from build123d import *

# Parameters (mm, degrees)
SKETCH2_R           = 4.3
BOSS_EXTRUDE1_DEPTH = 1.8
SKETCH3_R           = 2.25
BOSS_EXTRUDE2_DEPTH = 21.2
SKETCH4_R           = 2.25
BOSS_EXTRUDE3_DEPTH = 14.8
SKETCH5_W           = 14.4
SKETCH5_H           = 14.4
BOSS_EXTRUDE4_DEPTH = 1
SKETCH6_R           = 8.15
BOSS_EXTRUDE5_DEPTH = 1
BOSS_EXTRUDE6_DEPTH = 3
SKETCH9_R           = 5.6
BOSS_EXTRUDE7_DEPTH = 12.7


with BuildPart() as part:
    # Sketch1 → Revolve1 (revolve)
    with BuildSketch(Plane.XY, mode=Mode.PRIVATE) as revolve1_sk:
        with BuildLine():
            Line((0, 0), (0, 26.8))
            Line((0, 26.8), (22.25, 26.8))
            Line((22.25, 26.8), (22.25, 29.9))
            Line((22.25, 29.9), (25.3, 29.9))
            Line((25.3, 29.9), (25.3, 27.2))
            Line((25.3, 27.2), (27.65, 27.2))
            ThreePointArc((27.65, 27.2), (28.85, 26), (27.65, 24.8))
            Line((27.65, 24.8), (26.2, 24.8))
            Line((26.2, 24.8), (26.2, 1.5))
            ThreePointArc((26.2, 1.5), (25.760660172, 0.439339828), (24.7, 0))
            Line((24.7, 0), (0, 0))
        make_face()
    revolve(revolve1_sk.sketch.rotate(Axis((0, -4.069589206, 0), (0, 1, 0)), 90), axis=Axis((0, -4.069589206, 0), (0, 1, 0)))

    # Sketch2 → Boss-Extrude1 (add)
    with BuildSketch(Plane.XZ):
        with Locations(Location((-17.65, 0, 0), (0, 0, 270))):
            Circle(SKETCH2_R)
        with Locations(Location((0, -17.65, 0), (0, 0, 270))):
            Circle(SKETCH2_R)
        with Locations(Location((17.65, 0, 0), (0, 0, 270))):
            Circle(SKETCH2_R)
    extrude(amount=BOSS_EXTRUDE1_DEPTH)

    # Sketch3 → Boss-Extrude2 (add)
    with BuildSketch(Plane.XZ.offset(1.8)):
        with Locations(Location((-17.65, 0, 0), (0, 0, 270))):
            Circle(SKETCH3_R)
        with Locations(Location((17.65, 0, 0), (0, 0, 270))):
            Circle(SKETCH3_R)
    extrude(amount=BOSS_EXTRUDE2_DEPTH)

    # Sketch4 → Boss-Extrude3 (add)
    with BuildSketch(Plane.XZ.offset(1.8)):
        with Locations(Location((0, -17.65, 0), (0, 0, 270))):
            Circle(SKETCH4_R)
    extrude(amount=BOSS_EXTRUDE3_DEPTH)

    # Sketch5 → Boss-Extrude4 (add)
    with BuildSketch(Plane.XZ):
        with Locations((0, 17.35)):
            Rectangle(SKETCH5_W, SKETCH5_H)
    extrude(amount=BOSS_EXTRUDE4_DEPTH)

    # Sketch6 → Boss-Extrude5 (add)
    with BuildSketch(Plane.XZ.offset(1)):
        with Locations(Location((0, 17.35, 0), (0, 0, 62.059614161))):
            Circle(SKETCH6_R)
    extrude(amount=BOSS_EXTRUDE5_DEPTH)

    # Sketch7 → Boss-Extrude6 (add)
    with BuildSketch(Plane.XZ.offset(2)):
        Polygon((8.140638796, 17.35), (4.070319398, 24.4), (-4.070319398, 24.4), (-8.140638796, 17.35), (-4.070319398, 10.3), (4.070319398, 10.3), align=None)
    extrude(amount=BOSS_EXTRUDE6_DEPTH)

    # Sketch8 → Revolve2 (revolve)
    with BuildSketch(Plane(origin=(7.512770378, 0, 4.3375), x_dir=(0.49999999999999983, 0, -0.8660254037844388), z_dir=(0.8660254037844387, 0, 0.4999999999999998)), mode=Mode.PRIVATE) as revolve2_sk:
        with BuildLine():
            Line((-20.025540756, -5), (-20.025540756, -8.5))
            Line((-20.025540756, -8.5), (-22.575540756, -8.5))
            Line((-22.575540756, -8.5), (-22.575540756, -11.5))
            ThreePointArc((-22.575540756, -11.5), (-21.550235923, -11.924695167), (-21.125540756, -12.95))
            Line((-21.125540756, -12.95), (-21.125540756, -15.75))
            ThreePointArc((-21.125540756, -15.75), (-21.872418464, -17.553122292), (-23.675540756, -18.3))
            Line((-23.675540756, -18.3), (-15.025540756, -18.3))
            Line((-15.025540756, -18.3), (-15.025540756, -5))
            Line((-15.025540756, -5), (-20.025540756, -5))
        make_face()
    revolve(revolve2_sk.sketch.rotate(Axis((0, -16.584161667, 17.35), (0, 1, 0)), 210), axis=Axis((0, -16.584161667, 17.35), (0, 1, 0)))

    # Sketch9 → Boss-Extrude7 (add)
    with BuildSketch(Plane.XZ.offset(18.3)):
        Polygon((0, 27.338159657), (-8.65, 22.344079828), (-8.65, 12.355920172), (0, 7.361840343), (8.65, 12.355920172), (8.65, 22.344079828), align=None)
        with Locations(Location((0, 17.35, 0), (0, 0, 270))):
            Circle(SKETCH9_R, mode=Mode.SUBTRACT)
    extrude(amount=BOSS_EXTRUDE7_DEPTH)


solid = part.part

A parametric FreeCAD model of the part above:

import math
import FreeCAD as App
import Part
import Sketcher
Q = App.Units.Quantity

doc = App.newDocument("Part")
body = doc.addObject("PartDesign::Body", "Body")

sketch1 = body.newObject("Sketcher::SketchObject", "Sketch")
sketch1.AttachmentSupport = (doc.getObject("XY_Plane"), [""])
sketch1.MapMode = "FlatFace"
sketch1.addGeometry(Part.LineSegment(App.Vector(0, 26.8, 0), App.Vector(0, 0, 0)), False)
sketch1.addGeometry(Part.LineSegment(App.Vector(0, 0, 0), App.Vector(24.7, 0, 0)), False)
sketch1.addGeometry(Part.ArcOfCircle(Part.Circle(App.Vector(24.7, 1.5, 0), App.Vector(0, 0, 1), 1.5), math.radians(-90), math.radians(0)), False)
sketch1.addGeometry(Part.LineSegment(App.Vector(26.2, 1.5, 0), App.Vector(26.2, 24.8, 0)), False)
sketch1.addGeometry(Part.LineSegment(App.Vector(26.2, 24.8, 0), App.Vector(27.65, 24.8, 0)), False)
sketch1.addGeometry(Part.ArcOfCircle(Part.Circle(App.Vector(27.65, 26, 0), App.Vector(0, 0, 1), 1.2), math.radians(-90), math.radians(90)), False)
sketch1.addGeometry(Part.LineSegment(App.Vector(27.65, 27.2, 0), App.Vector(25.3, 27.2, 0)), False)
sketch1.addGeometry(Part.LineSegment(App.Vector(25.3, 27.2, 0), App.Vector(25.3, 29.9, 0)), False)
sketch1.addGeometry(Part.LineSegment(App.Vector(25.3, 29.9, 0), App.Vector(22.25, 29.9, 0)), False)
sketch1.addGeometry(Part.LineSegment(App.Vector(22.25, 29.9, 0), App.Vector(22.25, 26.8, 0)), False)
sketch1.addGeometry(Part.LineSegment(App.Vector(22.25, 26.8, 0), App.Vector(0, 26.8, 0)), False)
sketch1.addConstraint(Sketcher.Constraint("Coincident", 0, 2, 1, 1))
sketch1.addConstraint(Sketcher.Constraint("Tangent", 1, 2, 2, 1))
sketch1.addConstraint(Sketcher.Constraint("Tangent", 2, 2, 3, 1))
sketch1.addConstraint(Sketcher.Constraint("Coincident", 3, 2, 4, 1))
sketch1.addConstraint(Sketcher.Constraint("Tangent", 4, 2, 5, 1))
sketch1.addConstraint(Sketcher.Constraint("Tangent", 5, 2, 6, 1))
sketch1.addConstraint(Sketcher.Constraint("Coincident", 6, 2, 7, 1))
sketch1.addConstraint(Sketcher.Constraint("Coincident", 7, 2, 8, 1))
sketch1.addConstraint(Sketcher.Constraint("Coincident", 8, 2, 9, 1))
sketch1.addConstraint(Sketcher.Constraint("Coincident", 9, 2, 10, 1))
sketch1.addConstraint(Sketcher.Constraint("Coincident", 10, 2, 0, 1))
sketch1.addConstraint(Sketcher.Constraint("Vertical", 0))
sketch1.addConstraint(Sketcher.Constraint("Horizontal", 1))
sketch1.addConstraint(Sketcher.Constraint("Vertical", 3))
sketch1.addConstraint(Sketcher.Constraint("Horizontal", 4))
sketch1.addConstraint(Sketcher.Constraint("Horizontal", 6))
sketch1.addConstraint(Sketcher.Constraint("Vertical", 7))
sketch1.addConstraint(Sketcher.Constraint("Horizontal", 8))
sketch1.addConstraint(Sketcher.Constraint("Vertical", 9))
sketch1.addConstraint(Sketcher.Constraint("Horizontal", 10))
sketch1.addConstraint(Sketcher.Constraint("Coincident", 0, 2, -1, 1))
sketch1.addConstraint(Sketcher.Constraint("Radius", 2, 1.5))
sketch1.addConstraint(Sketcher.Constraint("Radius", 5, 1.2))
sketch1.addConstraint(Sketcher.Constraint("DistanceX", 1, 1, 1, 2, 24.7))
sketch1.addConstraint(Sketcher.Constraint("DistanceY", 0, 2, 0, 1, 26.8))
sketch1.addConstraint(Sketcher.Constraint("DistanceY", 3, 1, 3, 2, 23.3))
sketch1.addConstraint(Sketcher.Constraint("DistanceY", 7, 1, 7, 2, 2.7))
sketch1.addConstraint(Sketcher.Constraint("DistanceX", 4, 1, 4, 2, 1.45))
sketch1.addConstraint(Sketcher.Constraint("DistanceX", 6, 2, 6, 1, 2.35))
sketch1.addConstraint(Sketcher.Constraint("DistanceX", 8, 2, 8, 1, 3.05))
revolution = body.newObject("PartDesign::Revolution", "Revolution")
revolution.Profile = sketch1
revolution.ReferenceAxis = (sketch1, ["V_Axis"])
revolution.Angle = 360

sketch2 = body.newObject("Sketcher::SketchObject", "Sketch001")
sketch2.AttachmentSupport = (doc.getObject("XZ_Plane"), [""])
sketch2.MapMode = "FlatFace"
sketch2.addGeometry(Part.Circle(App.Vector(-17.65, 0, 0), App.Vector(0, 0, 1), 4.3), False)
sketch2.addGeometry(Part.Circle(App.Vector(0, -17.65, 0), App.Vector(0, 0, 1), 4.3), False)
sketch2.addGeometry(Part.Circle(App.Vector(17.65, 0, 0), App.Vector(0, 0, 1), 4.3), False)
sketch2.addConstraint(Sketcher.Constraint("Equal", 0, 1))
sketch2.addConstraint(Sketcher.Constraint("Equal", 1, 2))
sketch2.addConstraint(Sketcher.Constraint("Symmetric", 0, 3, 2, 3, -1, 1))
sketch2.addConstraint(Sketcher.Constraint("PointOnObject", 0, 3, -1))
sketch2.addConstraint(Sketcher.Constraint("PointOnObject", 1, 3, -2))
sketch2.addConstraint(Sketcher.Constraint("Diameter", 0, 8.6))
sketch2.addConstraint(Sketcher.Constraint("DistanceX", 0, 3, 2, 3, 35.3))
sketch2.addConstraint(Sketcher.Constraint("DistanceY", 1, 3, -1, 1, 17.65))
pad1 = body.newObject("PartDesign::Pad", "Pad")
pad1.Profile = sketch2
pad1.Length = 1.8

sketch3 = body.newObject("Sketcher::SketchObject", "Sketch002")
sketch3.AttachmentSupport = (doc.getObject("XZ_Plane"), [""])
sketch3.MapMode = "FlatFace"
sketch3.AttachmentOffset = App.Placement(App.Vector(0, 0, 1.8), App.Rotation())
sketch3.addGeometry(Part.Circle(App.Vector(-17.65, 0, 0), App.Vector(0, 0, 1), 2.25), False)
sketch3.addGeometry(Part.Circle(App.Vector(17.65, 0, 0), App.Vector(0, 0, 1), 2.25), False)
sketch3.addConstraint(Sketcher.Constraint("Equal", 0, 1))
sketch3.addConstraint(Sketcher.Constraint("Symmetric", 0, 3, 1, 3, -1, 1))
sketch3.addConstraint(Sketcher.Constraint("PointOnObject", 0, 3, -1))
sketch3.addConstraint(Sketcher.Constraint("Diameter", 0, 4.5))
sketch3.addConstraint(Sketcher.Constraint("DistanceX", 0, 3, 1, 3, 35.3))
pad2 = body.newObject("PartDesign::Pad", "Pad001")
pad2.Profile = sketch3
pad2.Length = 21.2

sketch4 = body.newObject("Sketcher::SketchObject", "Sketch003")
sketch4.AttachmentSupport = (doc.getObject("XZ_Plane"), [""])
sketch4.MapMode = "FlatFace"
sketch4.AttachmentOffset = App.Placement(App.Vector(0, 0, 1.8), App.Rotation())
sketch4.addGeometry(Part.Circle(App.Vector(0, -17.65, 0), App.Vector(0, 0, 1), 2.25), False)
sketch4.addConstraint(Sketcher.Constraint("PointOnObject", 0, 3, -2))
sketch4.addConstraint(Sketcher.Constraint("Diameter", 0, 4.5))
sketch4.addConstraint(Sketcher.Constraint("DistanceY", 0, 3, -1, 1, 17.65))
pad3 = body.newObject("PartDesign::Pad", "Pad002")
pad3.Profile = sketch4
pad3.Length = 14.8

sketch5 = body.newObject("Sketcher::SketchObject", "Sketch004")
sketch5.AttachmentSupport = (doc.getObject("XZ_Plane"), [""])
sketch5.MapMode = "FlatFace"
sketch5.addGeometry(Part.LineSegment(App.Vector(-7.2, 24.55, 0), App.Vector(-7.2, 10.15, 0)), False)
sketch5.addGeometry(Part.LineSegment(App.Vector(-7.2, 10.15, 0), App.Vector(7.2, 10.15, 0)), False)
sketch5.addGeometry(Part.LineSegment(App.Vector(7.2, 10.15, 0), App.Vector(7.2, 24.55, 0)), False)
sketch5.addGeometry(Part.LineSegment(App.Vector(7.2, 24.55, 0), App.Vector(-7.2, 24.55, 0)), False)
sketch5.addConstraint(Sketcher.Constraint("Coincident", 0, 2, 1, 1))
sketch5.addConstraint(Sketcher.Constraint("Coincident", 1, 2, 2, 1))
sketch5.addConstraint(Sketcher.Constraint("Coincident", 2, 2, 3, 1))
sketch5.addConstraint(Sketcher.Constraint("Coincident", 3, 2, 0, 1))
sketch5.addConstraint(Sketcher.Constraint("Vertical", 0))
sketch5.addConstraint(Sketcher.Constraint("Horizontal", 1))
sketch5.addConstraint(Sketcher.Constraint("Vertical", 2))
sketch5.addConstraint(Sketcher.Constraint("Horizontal", 3))
sketch5.addConstraint(Sketcher.Constraint("Equal", 3, 0))
sketch5.addConstraint(Sketcher.Constraint("DistanceX", 1, 1, 1, 2, 14.4))
sketch5.addConstraint(Sketcher.Constraint("DistanceX", 0, 2, -1, 1, 7.2))
sketch5.addConstraint(Sketcher.Constraint("DistanceY", -1, 1, 0, 2, 10.15))
pad4 = body.newObject("PartDesign::Pad", "Pad003")
pad4.Profile = sketch5
pad4.Length = 1

sketch6 = body.newObject("Sketcher::SketchObject", "Sketch005")
sketch6.AttachmentSupport = (doc.getObject("XZ_Plane"), [""])
sketch6.MapMode = "FlatFace"
sketch6.AttachmentOffset = App.Placement(App.Vector(0, 0, 1), App.Rotation())
sketch6.addGeometry(Part.Circle(App.Vector(0, 17.35, 0), App.Vector(0, 0, 1), 8.15), False)
sketch6.addConstraint(Sketcher.Constraint("PointOnObject", 0, 3, -2))
sketch6.addConstraint(Sketcher.Constraint("Diameter", 0, 16.3))
sketch6.addConstraint(Sketcher.Constraint("DistanceY", -1, 1, 0, 3, 17.35))
pad5 = body.newObject("PartDesign::Pad", "Pad004")
pad5.Profile = sketch6
pad5.Length = 1

sketch7 = body.newObject("Sketcher::SketchObject", "Sketch006")
sketch7.AttachmentSupport = (doc.getObject("XZ_Plane"), [""])
sketch7.MapMode = "FlatFace"
sketch7.AttachmentOffset = App.Placement(App.Vector(0, 0, 2), App.Rotation())
sketch7.addGeometry(Part.LineSegment(App.Vector(8.140639, 17.35, 0), App.Vector(4.070319, 24.4, 0)), False)
sketch7.addGeometry(Part.LineSegment(App.Vector(4.070319, 24.4, 0), App.Vector(-4.070319, 24.4, 0)), False)
sketch7.addGeometry(Part.LineSegment(App.Vector(-4.070319, 24.4, 0), App.Vector(-8.140639, 17.35, 0)), False)
sketch7.addGeometry(Part.LineSegment(App.Vector(-8.140639, 17.35, 0), App.Vector(-4.070319, 10.3, 0)), False)
sketch7.addGeometry(Part.LineSegment(App.Vector(-4.070319, 10.3, 0), App.Vector(4.070319, 10.3, 0)), False)
sketch7.addGeometry(Part.LineSegment(App.Vector(4.070319, 10.3, 0), App.Vector(8.140639, 17.35, 0)), False)
sketch7.addConstraint(Sketcher.Constraint("Coincident", 0, 2, 1, 1))
sketch7.addConstraint(Sketcher.Constraint("Coincident", 1, 2, 2, 1))
sketch7.addConstraint(Sketcher.Constraint("Coincident", 2, 2, 3, 1))
sketch7.addConstraint(Sketcher.Constraint("Coincident", 3, 2, 4, 1))
sketch7.addConstraint(Sketcher.Constraint("Coincident", 4, 2, 5, 1))
sketch7.addConstraint(Sketcher.Constraint("Coincident", 5, 2, 0, 1))
sketch7.addConstraint(Sketcher.Constraint("Horizontal", 1))
sketch7.addConstraint(Sketcher.Constraint("Horizontal", 4))
sketch7.addConstraint(Sketcher.Constraint("Symmetric", 2, 2, 5, 2, -2))
sketch7.addConstraint(Sketcher.Constraint("Parallel", 0, 3))
sketch7.addConstraint(Sketcher.Constraint("Parallel", 2, 5))
sketch7.addConstraint(Sketcher.Constraint("Vertical", 1, 2, 3, 2))
sketch7.addConstraint(Sketcher.Constraint("Vertical", 0, 2, 4, 2))
sketch7.addConstraint(Sketcher.Constraint("Angle", 0, Q("120 deg")))
sketch7.addConstraint(Sketcher.Constraint("DistanceY", -1, 1, 0, 2, 24.4))
sketch7.addConstraint(Sketcher.Constraint("DistanceY", -1, 1, 3, 2, 10.3))
sketch7.addConstraint(Sketcher.Constraint("DistanceX", 1, 2, 1, 1, 8.140639))
pad6 = body.newObject("PartDesign::Pad", "Pad005")
pad6.Profile = sketch7
pad6.Length = 3

sketch8 = body.newObject("Sketcher::SketchObject", "Sketch007")
sketch8.Placement = App.Placement(App.Vector(7.51277, 0, 4.3375), App.Rotation(App.Vector(0.5, 0, -0.866025404), App.Vector(0, 1, 0), App.Vector(0.866025404, 0, 0.5), "ZXY"))
sketch8.addGeometry(Part.LineSegment(App.Vector(-20.025541, -5, 0), App.Vector(-20.025541, -8.5, 0)), False)
sketch8.addGeometry(Part.LineSegment(App.Vector(-20.025541, -8.5, 0), App.Vector(-22.575541, -8.5, 0)), False)
sketch8.addGeometry(Part.LineSegment(App.Vector(-22.575541, -8.5, 0), App.Vector(-22.575541, -11.5, 0)), False)
sketch8.addGeometry(Part.ArcOfCircle(Part.Circle(App.Vector(-22.575541, -12.95, 0), App.Vector(0, 0, 1), 1.45), math.radians(0), math.radians(90)), False)
sketch8.addGeometry(Part.LineSegment(App.Vector(-21.125541, -12.95, 0), App.Vector(-21.125541, -15.75, 0)), False)
sketch8.addGeometry(Part.ArcOfCircle(Part.Circle(App.Vector(-23.675541, -15.75, 0), App.Vector(0, 0, 1), 2.55), math.radians(-90), math.radians(0)), False)
sketch8.addGeometry(Part.LineSegment(App.Vector(-23.675541, -18.3, 0), App.Vector(-15.025541, -18.3, 0)), False)
sketch8.addGeometry(Part.LineSegment(App.Vector(-15.025541, -18.3, 0), App.Vector(-15.025541, -5, 0)), False)
sketch8.addGeometry(Part.LineSegment(App.Vector(-15.025541, -5, 0), App.Vector(-20.025541, -5, 0)), False)
sketch8.addGeometry(Part.LineSegment(App.Vector(-15.025541, -18.3, 0), App.Vector(-15.025541, -5, 0)), True)
sketch8.addConstraint(Sketcher.Constraint("Coincident", 0, 2, 1, 1))
sketch8.addConstraint(Sketcher.Constraint("Coincident", 1, 2, 2, 1))
sketch8.addConstraint(Sketcher.Constraint("Coincident", 2, 2, 3, 2))
sketch8.addConstraint(Sketcher.Constraint("Tangent", 3, 1, 4, 1))
sketch8.addConstraint(Sketcher.Constraint("Tangent", 4, 2, 5, 2))
sketch8.addConstraint(Sketcher.Constraint("Tangent", 5, 1, 6, 1))
sketch8.addConstraint(Sketcher.Constraint("Coincident", 6, 2, 7, 1))
sketch8.addConstraint(Sketcher.Constraint("Coincident", 7, 2, 8, 1))
sketch8.addConstraint(Sketcher.Constraint("Coincident", 8, 2, 0, 1))
sketch8.addConstraint(Sketcher.Constraint("Vertical", 0))
sketch8.addConstraint(Sketcher.Constraint("Horizontal", 1))
sketch8.addConstraint(Sketcher.Constraint("Vertical", 2))
sketch8.addConstraint(Sketcher.Constraint("Vertical", 4))
sketch8.addConstraint(Sketcher.Constraint("Horizontal", 6))
sketch8.addConstraint(Sketcher.Constraint("Vertical", 7))
sketch8.addConstraint(Sketcher.Constraint("Horizontal", 8))
sketch8.addConstraint(Sketcher.Constraint("Vertical", 9))
sketch8.addConstraint(Sketcher.Constraint("Coincident", 9, 1, 6, 2))
sketch8.addConstraint(Sketcher.Constraint("Horizontal", 8, 2, 9, 2))
sketch8.addConstraint(Sketcher.Constraint("Vertical", 3, 3, 1, 2))
sketch8.addConstraint(Sketcher.Constraint("DistanceX", 8, 2, 8, 1, 5.0))
sketch8.addConstraint(Sketcher.Constraint("DistanceY", 2, 2, 2, 1, 3.0))
sketch8.addConstraint(Sketcher.Constraint("Radius", 3, 1.45))
sketch8.addConstraint(Sketcher.Constraint("Radius", 5, 2.55))
sketch8.addConstraint(Sketcher.Constraint("DistanceY", 0, 2, 0, 1, 3.5))
sketch8.addConstraint(Sketcher.Constraint("DistanceY", 4, 2, 4, 1, 2.8))
sketch8.addConstraint(Sketcher.Constraint("DistanceY", 7, 2, -1, 1, 5.0))
sketch8.addConstraint(Sketcher.Constraint("DistanceX", 1, 2, 1, 1, 2.55))
sketch8.addConstraint(Sketcher.Constraint("DistanceX", 3, 3, -1, 1, 22.575541))
revolution2 = body.newObject("PartDesign::Revolution", "Revolution001")
revolution2.Profile = sketch8
revolution2.ReferenceAxis = (sketch8, ["Axis0"])
revolution2.Angle = 360

sketch9 = body.newObject("Sketcher::SketchObject", "Sketch008")
sketch9.AttachmentSupport = (doc.getObject("XZ_Plane"), [""])
sketch9.MapMode = "FlatFace"
sketch9.AttachmentOffset = App.Placement(App.Vector(0, 0, 18.3), App.Rotation())
sketch9.addGeometry(Part.LineSegment(App.Vector(0, 27.33816, 0), App.Vector(-8.65, 22.34408, 0)), False)
sketch9.addGeometry(Part.LineSegment(App.Vector(-8.65, 22.34408, 0), App.Vector(-8.65, 12.35592, 0)), False)
sketch9.addGeometry(Part.LineSegment(App.Vector(-8.65, 12.35592, 0), App.Vector(0, 7.36184, 0)), False)
sketch9.addGeometry(Part.LineSegment(App.Vector(0, 7.36184, 0), App.Vector(8.65, 12.35592, 0)), False)
sketch9.addGeometry(Part.LineSegment(App.Vector(8.65, 12.35592, 0), App.Vector(8.65, 22.34408, 0)), False)
sketch9.addGeometry(Part.LineSegment(App.Vector(8.65, 22.34408, 0), App.Vector(0, 27.33816, 0)), False)
sketch9.addGeometry(Part.Circle(App.Vector(0, 17.35, 0), App.Vector(0, 0, 1), 5.6), False)
sketch9.addConstraint(Sketcher.Constraint("Coincident", 0, 2, 1, 1))
sketch9.addConstraint(Sketcher.Constraint("Coincident", 1, 2, 2, 1))
sketch9.addConstraint(Sketcher.Constraint("Coincident", 2, 2, 3, 1))
sketch9.addConstraint(Sketcher.Constraint("Coincident", 3, 2, 4, 1))
sketch9.addConstraint(Sketcher.Constraint("Coincident", 4, 2, 5, 1))
sketch9.addConstraint(Sketcher.Constraint("Coincident", 5, 2, 0, 1))
sketch9.addConstraint(Sketcher.Constraint("Vertical", 1))
sketch9.addConstraint(Sketcher.Constraint("Vertical", 4))
sketch9.addConstraint(Sketcher.Constraint("Symmetric", 1, 2, 3, 2, -2))
sketch9.addConstraint(Sketcher.Constraint("PointOnObject", 6, 3, -2))
sketch9.addConstraint(Sketcher.Constraint("PointOnObject", 2, 2, -2))
sketch9.addConstraint(Sketcher.Constraint("PointOnObject", 5, 2, -2))
sketch9.addConstraint(Sketcher.Constraint("Parallel", 0, 3))
sketch9.addConstraint(Sketcher.Constraint("Parallel", 2, 5))
sketch9.addConstraint(Sketcher.Constraint("Diameter", 6, 11.2))
sketch9.addConstraint(Sketcher.Constraint("Angle", 0, Q("-150 deg")))
sketch9.addConstraint(Sketcher.Constraint("DistanceX", 1, 2, 3, 2, 17.3))
sketch9.addConstraint(Sketcher.Constraint("DistanceY", -1, 1, 6, 3, 17.35))
sketch9.addConstraint(Sketcher.Constraint("DistanceY", 1, 2, 1, 1, 9.98816))
sketch9.addConstraint(Sketcher.Constraint("DistanceY", -1, 1, 0, 2, 22.34408))
pad7 = body.newObject("PartDesign::Pad", "Pad006")
pad7.Profile = sketch9
pad7.Length = 12.7

doc.recompute()
